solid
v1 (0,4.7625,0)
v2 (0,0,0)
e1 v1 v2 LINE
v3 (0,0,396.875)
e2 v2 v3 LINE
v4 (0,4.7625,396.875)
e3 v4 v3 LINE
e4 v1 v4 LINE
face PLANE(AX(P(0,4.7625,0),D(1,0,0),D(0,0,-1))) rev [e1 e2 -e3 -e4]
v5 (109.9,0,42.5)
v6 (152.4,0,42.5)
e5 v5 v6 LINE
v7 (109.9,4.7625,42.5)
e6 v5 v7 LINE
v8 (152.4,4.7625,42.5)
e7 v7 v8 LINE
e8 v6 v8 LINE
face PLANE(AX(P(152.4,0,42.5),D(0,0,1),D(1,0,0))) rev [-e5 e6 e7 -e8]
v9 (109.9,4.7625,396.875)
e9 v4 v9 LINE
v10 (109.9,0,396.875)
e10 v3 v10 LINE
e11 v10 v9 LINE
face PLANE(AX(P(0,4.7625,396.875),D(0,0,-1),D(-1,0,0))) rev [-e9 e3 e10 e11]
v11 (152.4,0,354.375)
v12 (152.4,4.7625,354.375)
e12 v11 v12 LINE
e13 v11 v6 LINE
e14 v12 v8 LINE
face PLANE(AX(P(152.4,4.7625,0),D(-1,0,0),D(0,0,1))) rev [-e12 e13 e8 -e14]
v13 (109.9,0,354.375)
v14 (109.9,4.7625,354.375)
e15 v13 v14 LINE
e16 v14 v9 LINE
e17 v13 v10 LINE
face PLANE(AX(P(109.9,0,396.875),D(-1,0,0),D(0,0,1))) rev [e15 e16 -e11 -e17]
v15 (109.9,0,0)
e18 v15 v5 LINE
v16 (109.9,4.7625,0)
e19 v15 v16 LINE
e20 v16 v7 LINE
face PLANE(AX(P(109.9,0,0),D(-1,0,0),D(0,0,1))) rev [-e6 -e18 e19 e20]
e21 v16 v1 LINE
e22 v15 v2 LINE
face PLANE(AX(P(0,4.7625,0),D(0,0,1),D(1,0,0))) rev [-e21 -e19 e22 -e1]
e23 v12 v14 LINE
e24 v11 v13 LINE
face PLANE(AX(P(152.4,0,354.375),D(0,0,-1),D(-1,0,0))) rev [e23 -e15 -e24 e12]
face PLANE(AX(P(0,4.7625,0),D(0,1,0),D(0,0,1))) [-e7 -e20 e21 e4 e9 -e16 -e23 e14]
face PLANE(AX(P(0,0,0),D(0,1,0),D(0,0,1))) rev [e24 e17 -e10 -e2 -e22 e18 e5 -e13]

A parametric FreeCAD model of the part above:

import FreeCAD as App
import Part
import Sketcher

V = App.Vector
Q = App.Units.Quantity

doc = App.newDocument("Part")
body = doc.addObject("PartDesign::Body", "Body")

sketch1 = body.newObject("Sketcher::SketchObject", "Sketch")
sketch1.AttachmentSupport = (doc.getObject("XZ_Plane"), [""])
sketch1.MapMode = "FlatFace"
sketch1.addGeometry([
    Part.LineSegment(V(0, 0, 0), V(0, 397, 0)),
    Part.LineSegment(V(0, 397, 0), V(152, 397, 0)),
    Part.LineSegment(V(152, 397, 0), V(152, 0, 0)),
    Part.LineSegment(V(152, 0, 0), V(0, 0, 0)),
], False)
sketch1.addConstraint([
    Sketcher.Constraint("Coincident", 0, 2, 1, 1),
    Sketcher.Constraint("Coincident", 1, 2, 2, 1),
    Sketcher.Constraint("Coincident", 2, 2, 3, 1),
    Sketcher.Constraint("Coincident", 3, 2, 0, 1),
    Sketcher.Constraint("Vertical", 0),
    Sketcher.Constraint("Horizontal", 1),
    Sketcher.Constraint("Vertical", 2),
    Sketcher.Constraint("Horizontal", 3),
    Sketcher.Constraint("Coincident", 3, 2, -1, 1),
    Sketcher.Constraint("DistanceX", 1, 1, 1, 2, Q("6 in")),
    Sketcher.Constraint("DistanceY", 0, 1, 0, 2, Q("15.625 in")),
])
pad1 = body.newObject("PartDesign::Pad", "Pad")
pad1.Profile = sketch1
pad1.Length = Q("0.1875 in")
pad1.Reversed = True

sketch2 = body.newObject("Sketcher::SketchObject", "Sketch001")
sketch2.AttachmentSupport = (doc.getObject("XZ_Plane"), [""])
sketch2.MapMode = "FlatFace"
sketch2.AttachmentOffset = App.Placement(V(0, 0, -0.1875 * 25.4), App.Rotation())
sketch2.addGeometry([
    Part.LineSegment(V(110, 0, 0), V(110, 42, 0)),
    Part.LineSegment(V(110, 42, 0), V(152, 42, 0)),
    Part.LineSegment(V(152, 42, 0), V(152, 0, 0)),
    Part.LineSegment(V(152, 0, 0), V(110, 0, 0)),
    Part.LineSegment(V(110, 354, 0), V(110, 397, 0)),
    Part.LineSegment(V(110, 397, 0), V(152, 397, 0)),
    Part.LineSegment(V(152, 397, 0), V(152, 354, 0)),
    Part.LineSegment(V(152, 354, 0), V(110, 354, 0)),
], False)
sketch2.addConstraint([
    Sketcher.Constraint("Coincident", 0, 2, 1, 1),
    Sketcher.Constraint("Coincident", 1, 2, 2, 1),
    Sketcher.Constraint("Coincident", 2, 2, 3, 1),
    Sketcher.Constraint("Coincident", 3, 2, 0, 1),
    Sketcher.Constraint("Coincident", 4, 2, 5, 1),
    Sketcher.Constraint("Coincident", 5, 2, 6, 1),
    Sketcher.Constraint("Coincident", 6, 2, 7, 1),
    Sketcher.Constraint("Coincident", 7, 2, 4, 1),
    Sketcher.Constraint("Vertical", 0),
    Sketcher.Constraint("Horizontal", 1),
    Sketcher.Constraint("Vertical", 2),
    Sketcher.Constraint("Horizontal", 3),
    Sketcher.Constraint("Vertical", 4),
    Sketcher.Constraint("Horizontal", 5),
    Sketcher.Constraint("Vertical", 6),
    Sketcher.Constraint("Horizontal", 7),
    Sketcher.Constraint("PointOnObject", 2, 2, -1),
    Sketcher.Constraint("Vertical", 3, 2, 4, 2),
    Sketcher.Constraint("Vertical", 2, 2, 5, 2),
    Sketcher.Constraint("Equal", 7, 0),
    Sketcher.Constraint("Equal", 2, 4),
    Sketcher.Constraint("DistanceX", -1, 1, 1, 2, Q("6 in")),
    Sketcher.Constraint("DistanceY", -1, 1, 4, 2, Q("15.625 in")),
    Sketcher.Constraint("DistanceX", 1, 1, 1, 2, 42.5),
])
pocket1 = body.newObject("PartDesign::Pocket", "Pocket")
pocket1.Profile = sketch2
pocket1.Type = "ThroughAll"
pocket1.Reversed = True

doc.recompute()
